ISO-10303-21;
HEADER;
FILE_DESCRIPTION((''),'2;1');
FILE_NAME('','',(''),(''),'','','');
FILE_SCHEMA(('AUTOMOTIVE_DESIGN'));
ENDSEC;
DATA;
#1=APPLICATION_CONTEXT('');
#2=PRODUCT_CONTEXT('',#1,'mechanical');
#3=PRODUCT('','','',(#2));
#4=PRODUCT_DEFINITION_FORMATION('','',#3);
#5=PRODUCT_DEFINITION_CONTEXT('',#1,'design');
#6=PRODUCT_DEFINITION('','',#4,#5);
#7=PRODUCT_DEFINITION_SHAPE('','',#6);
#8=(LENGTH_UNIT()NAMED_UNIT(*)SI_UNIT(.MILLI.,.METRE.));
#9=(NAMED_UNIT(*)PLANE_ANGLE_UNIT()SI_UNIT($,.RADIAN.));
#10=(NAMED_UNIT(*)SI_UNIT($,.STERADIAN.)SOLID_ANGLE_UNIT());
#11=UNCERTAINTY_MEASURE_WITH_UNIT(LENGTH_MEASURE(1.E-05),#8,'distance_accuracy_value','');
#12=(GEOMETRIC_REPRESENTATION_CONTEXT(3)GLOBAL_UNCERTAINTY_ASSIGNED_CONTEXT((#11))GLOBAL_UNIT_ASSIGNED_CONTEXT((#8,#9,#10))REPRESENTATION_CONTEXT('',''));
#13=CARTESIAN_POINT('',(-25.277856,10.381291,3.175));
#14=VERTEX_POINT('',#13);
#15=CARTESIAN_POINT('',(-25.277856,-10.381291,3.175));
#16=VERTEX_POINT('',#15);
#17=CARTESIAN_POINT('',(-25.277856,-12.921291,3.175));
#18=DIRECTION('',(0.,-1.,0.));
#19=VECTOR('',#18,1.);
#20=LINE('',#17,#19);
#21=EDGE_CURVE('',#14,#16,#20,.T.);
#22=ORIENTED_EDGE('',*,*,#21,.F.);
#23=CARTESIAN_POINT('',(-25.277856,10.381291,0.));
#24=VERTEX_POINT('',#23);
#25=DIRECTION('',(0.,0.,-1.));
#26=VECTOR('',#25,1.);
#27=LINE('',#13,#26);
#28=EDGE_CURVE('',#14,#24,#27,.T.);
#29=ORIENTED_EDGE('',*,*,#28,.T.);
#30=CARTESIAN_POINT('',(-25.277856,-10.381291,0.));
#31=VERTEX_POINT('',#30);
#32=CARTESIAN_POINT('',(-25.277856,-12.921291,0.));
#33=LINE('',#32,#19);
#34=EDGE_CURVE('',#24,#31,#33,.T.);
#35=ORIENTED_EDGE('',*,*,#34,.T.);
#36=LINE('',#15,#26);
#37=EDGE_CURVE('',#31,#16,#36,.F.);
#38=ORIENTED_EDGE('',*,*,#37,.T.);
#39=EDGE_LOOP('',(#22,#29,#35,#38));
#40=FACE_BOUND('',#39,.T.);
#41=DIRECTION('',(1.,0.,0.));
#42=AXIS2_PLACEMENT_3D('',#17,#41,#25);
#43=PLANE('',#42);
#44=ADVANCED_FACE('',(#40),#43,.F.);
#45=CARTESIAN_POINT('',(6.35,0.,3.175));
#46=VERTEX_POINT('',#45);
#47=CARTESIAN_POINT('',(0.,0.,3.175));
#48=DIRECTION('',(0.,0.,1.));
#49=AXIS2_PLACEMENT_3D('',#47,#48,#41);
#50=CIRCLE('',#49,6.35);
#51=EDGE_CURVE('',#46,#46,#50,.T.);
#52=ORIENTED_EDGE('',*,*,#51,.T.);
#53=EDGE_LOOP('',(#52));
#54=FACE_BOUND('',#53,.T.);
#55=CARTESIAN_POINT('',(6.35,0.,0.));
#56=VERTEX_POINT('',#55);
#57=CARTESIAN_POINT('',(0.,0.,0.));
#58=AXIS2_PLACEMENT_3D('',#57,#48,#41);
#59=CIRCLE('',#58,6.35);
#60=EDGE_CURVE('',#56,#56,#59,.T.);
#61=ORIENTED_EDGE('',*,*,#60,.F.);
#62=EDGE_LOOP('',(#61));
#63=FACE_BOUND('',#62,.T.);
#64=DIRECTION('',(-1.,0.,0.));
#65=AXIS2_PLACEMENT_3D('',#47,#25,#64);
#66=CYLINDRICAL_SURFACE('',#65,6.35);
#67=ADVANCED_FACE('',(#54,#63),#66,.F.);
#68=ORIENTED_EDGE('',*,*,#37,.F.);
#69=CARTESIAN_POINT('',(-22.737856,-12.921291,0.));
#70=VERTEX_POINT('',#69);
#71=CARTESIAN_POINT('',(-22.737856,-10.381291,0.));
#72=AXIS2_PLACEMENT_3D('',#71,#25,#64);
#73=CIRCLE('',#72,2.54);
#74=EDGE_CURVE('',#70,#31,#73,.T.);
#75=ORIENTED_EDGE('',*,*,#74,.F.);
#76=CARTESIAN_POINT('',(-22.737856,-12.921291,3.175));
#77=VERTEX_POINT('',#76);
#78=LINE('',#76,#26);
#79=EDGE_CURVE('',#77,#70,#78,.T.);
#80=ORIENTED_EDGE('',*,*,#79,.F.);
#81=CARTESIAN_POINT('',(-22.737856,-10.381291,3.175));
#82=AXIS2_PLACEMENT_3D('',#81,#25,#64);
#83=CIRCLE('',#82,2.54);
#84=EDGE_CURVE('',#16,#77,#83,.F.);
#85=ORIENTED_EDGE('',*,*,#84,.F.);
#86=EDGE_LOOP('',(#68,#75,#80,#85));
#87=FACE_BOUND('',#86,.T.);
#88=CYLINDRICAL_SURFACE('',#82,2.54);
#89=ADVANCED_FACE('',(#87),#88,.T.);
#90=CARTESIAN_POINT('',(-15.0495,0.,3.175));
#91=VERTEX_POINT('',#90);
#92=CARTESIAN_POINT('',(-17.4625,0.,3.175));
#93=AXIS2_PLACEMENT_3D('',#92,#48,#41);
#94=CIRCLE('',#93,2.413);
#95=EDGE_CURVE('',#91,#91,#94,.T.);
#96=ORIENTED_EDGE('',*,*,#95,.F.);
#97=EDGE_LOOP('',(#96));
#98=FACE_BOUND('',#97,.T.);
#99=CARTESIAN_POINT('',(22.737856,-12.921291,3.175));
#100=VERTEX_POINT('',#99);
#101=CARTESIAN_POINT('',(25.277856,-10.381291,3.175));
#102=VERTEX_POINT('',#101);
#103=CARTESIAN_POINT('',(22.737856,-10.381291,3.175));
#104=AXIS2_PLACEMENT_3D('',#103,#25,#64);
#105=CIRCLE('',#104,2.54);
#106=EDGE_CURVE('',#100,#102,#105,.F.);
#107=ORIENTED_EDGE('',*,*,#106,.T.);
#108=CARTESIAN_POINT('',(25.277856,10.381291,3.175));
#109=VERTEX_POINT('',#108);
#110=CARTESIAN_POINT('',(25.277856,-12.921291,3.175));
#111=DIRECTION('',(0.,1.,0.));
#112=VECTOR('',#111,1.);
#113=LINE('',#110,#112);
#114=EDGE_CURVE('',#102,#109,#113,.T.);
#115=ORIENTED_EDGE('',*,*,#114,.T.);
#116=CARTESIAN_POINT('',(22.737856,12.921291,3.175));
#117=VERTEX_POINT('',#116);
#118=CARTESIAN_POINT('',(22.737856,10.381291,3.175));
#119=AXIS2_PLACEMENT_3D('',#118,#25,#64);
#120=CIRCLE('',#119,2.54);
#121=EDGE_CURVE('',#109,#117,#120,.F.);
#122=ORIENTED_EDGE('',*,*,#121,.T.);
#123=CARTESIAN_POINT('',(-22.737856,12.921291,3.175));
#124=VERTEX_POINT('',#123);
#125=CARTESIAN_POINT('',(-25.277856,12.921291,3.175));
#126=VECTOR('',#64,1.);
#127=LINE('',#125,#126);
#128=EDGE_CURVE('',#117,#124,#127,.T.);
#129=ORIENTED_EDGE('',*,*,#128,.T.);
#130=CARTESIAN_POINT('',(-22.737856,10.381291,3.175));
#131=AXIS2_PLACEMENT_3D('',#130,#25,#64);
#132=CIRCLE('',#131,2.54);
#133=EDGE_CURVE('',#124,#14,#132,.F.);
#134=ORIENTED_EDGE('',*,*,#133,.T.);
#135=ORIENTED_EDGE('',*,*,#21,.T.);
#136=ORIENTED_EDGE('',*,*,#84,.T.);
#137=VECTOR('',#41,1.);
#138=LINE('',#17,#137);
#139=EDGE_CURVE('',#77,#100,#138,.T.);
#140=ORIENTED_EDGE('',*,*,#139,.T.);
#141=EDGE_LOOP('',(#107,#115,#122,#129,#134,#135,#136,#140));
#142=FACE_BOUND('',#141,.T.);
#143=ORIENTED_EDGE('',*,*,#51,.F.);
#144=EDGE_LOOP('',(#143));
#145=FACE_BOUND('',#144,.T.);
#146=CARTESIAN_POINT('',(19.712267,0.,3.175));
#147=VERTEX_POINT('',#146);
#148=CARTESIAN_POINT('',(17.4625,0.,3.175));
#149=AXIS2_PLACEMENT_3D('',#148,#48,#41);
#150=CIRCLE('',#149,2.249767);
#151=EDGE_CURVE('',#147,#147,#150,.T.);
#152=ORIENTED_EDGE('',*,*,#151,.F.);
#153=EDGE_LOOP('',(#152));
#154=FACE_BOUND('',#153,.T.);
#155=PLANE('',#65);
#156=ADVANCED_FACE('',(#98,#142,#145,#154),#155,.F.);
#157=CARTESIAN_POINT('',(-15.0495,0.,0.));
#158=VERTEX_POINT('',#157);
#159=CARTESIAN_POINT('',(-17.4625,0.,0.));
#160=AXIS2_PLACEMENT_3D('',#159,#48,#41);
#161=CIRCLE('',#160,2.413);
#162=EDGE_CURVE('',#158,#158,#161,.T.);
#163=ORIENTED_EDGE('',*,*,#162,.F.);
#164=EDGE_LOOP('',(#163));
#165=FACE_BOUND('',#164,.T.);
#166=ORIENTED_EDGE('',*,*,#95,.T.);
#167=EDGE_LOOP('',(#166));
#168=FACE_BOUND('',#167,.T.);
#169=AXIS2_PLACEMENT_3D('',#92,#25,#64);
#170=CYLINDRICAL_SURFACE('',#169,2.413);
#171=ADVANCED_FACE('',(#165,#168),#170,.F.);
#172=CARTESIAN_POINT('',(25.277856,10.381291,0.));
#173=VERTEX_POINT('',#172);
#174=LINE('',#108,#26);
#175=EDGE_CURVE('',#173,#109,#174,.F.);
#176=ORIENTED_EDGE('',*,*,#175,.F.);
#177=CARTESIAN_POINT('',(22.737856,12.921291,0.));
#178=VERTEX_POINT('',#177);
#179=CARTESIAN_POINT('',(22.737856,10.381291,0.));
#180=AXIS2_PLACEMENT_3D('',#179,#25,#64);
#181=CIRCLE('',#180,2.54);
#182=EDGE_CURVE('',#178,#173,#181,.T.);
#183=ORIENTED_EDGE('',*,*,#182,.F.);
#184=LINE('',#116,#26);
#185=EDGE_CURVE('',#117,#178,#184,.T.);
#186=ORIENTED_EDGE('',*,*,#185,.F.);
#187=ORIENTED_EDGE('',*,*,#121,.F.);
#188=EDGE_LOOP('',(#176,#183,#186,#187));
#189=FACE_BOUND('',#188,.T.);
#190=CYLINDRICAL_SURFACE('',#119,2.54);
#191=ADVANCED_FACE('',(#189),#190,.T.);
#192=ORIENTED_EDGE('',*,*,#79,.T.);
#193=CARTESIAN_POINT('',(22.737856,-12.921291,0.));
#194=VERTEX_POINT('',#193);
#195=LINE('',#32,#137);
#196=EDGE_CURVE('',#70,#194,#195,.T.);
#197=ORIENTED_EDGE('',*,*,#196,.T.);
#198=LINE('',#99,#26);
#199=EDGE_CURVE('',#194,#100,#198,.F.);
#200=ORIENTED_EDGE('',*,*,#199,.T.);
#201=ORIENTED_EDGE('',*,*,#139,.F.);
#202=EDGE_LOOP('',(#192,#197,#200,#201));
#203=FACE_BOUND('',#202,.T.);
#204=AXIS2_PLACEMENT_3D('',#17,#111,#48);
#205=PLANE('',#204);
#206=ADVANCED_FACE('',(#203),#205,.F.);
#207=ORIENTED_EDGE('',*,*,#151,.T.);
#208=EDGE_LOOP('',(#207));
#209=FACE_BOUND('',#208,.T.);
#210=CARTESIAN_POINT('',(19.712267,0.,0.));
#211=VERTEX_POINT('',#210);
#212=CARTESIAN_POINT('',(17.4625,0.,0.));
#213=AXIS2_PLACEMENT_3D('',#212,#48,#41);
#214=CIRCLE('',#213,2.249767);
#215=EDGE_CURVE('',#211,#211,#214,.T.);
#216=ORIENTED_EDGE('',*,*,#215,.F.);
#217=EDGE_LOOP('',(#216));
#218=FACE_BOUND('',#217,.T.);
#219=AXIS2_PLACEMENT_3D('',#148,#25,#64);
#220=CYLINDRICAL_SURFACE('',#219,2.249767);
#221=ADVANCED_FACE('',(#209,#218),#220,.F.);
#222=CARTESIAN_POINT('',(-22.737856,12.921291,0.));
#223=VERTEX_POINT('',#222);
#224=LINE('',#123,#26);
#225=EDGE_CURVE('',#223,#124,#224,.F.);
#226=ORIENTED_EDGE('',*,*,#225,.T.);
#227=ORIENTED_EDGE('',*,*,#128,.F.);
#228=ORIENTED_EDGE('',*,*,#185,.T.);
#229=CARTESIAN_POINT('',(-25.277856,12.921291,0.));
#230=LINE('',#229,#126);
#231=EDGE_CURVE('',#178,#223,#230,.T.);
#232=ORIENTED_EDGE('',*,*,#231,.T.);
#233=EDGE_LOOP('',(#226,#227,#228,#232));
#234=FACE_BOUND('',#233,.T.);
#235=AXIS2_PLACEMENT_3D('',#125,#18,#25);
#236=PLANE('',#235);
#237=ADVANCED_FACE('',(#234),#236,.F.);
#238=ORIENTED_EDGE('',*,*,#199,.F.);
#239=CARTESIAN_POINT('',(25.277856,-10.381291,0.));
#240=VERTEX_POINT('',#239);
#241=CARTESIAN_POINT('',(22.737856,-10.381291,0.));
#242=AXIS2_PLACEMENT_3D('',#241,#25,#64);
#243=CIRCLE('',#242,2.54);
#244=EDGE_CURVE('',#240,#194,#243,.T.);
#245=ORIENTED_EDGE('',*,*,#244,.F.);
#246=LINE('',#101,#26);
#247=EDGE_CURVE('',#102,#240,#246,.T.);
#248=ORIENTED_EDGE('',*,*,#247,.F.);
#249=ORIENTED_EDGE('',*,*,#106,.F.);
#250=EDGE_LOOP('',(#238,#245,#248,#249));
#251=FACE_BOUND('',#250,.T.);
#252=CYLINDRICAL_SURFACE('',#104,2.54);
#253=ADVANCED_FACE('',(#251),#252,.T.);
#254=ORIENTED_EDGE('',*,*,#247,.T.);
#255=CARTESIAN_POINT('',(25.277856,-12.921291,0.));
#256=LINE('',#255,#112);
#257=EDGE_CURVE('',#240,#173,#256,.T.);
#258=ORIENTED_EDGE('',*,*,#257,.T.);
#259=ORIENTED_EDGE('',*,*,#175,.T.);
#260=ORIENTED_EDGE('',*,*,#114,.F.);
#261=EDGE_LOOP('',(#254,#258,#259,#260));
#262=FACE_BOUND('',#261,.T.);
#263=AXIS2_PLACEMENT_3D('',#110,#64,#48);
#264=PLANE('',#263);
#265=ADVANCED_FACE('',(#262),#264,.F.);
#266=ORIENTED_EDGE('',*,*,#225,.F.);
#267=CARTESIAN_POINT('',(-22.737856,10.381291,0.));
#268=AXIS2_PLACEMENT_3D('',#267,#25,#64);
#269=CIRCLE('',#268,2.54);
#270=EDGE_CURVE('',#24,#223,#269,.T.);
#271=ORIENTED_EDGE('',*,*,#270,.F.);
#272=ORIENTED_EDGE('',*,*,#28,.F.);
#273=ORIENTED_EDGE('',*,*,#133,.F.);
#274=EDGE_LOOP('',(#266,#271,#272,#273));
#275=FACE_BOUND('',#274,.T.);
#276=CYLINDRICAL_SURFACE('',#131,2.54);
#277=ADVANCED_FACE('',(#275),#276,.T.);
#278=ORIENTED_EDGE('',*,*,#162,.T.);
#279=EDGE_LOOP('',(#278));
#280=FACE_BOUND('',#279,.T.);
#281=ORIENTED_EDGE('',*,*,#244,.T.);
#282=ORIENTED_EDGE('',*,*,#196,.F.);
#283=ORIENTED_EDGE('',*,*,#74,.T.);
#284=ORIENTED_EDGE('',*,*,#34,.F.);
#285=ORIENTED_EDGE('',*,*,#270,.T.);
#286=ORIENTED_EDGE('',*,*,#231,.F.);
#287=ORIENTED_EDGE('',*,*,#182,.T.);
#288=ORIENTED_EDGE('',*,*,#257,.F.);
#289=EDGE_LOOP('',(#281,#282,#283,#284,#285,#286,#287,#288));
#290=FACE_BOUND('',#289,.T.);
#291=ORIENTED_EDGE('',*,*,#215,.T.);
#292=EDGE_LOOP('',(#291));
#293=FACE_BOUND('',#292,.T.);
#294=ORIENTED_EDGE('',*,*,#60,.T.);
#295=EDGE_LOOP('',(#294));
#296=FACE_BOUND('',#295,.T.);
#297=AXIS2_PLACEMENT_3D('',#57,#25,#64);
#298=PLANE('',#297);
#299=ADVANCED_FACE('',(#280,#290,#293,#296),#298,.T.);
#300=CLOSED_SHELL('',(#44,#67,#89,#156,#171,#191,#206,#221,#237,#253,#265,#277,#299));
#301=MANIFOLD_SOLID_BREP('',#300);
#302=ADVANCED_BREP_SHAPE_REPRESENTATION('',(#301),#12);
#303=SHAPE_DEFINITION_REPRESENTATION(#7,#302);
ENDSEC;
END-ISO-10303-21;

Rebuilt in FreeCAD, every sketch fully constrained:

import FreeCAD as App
import Part
import Sketcher
from FreeCAD import Vector
Q = App.Units.Quantity


def edges_at(feature, points):
    """Names of the edges that pass closest to the given points."""
    edges = feature.Shape.Edges
    near = lambda p: min(range(len(edges)), key=lambda i: edges[i].distToShape(Part.Vertex(*p))[0])
    return sorted({f"Edge{near(p) + 1}" for p in points})

doc = App.newDocument("Part")
body = doc.addObject("PartDesign::Body", "Body")

sketch1 = body.newObject("Sketcher::SketchObject", "Sketch")
sketch1.AttachmentSupport = (doc.getObject("XY_Plane"), [""])
sketch1.MapMode = "FlatFace"
sketch1.addGeometry([
    Part.LineSegment(Vector(-25.3, 12.9, 0), Vector(-25.3, -12.9, 0)),
    Part.LineSegment(Vector(-25.3, -12.9, 0), Vector(25.3, -12.9, 0)),
    Part.LineSegment(Vector(25.3, -12.9, 0), Vector(25.3, 12.9, 0)),
    Part.LineSegment(Vector(25.3, 12.9, 0), Vector(-25.3, 12.9, 0)),
    Part.Circle(Vector(-17.5, 0, 0), Vector(0, 0, 1), 2.4),
    Part.Circle(Vector(0, 0, 0), Vector(0, 0, 1), 6.3),
    Part.Circle(Vector(17.5, 0, 0), Vector(0, 0, 1), 2.2),
], False)
sketch1.addConstraint([
    Sketcher.Constraint("Coincident", 0, 2, 1, 1),
    Sketcher.Constraint("Coincident", 1, 2, 2, 1),
    Sketcher.Constraint("Coincident", 2, 2, 3, 1),
    Sketcher.Constraint("Coincident", 3, 2, 0, 1),
    Sketcher.Constraint("Vertical", 0),
    Sketcher.Constraint("Horizontal", 1),
    Sketcher.Constraint("Vertical", 2),
    Sketcher.Constraint("Horizontal", 3),
    Sketcher.Constraint("Coincident", 5, 3, -1, 1),
    Sketcher.Constraint("Symmetric", 4, 3, 6, 3, -1, 1),
    Sketcher.Constraint("Symmetric", 0, 2, 2, 2, -1, 1),
    Sketcher.Constraint("PointOnObject", 4, 3, -1),
    Sketcher.Constraint("Diameter", 5, Q("0.5 in")),
    Sketcher.Constraint("Diameter", 4, Q("0.19 in")),
    Sketcher.Constraint("DistanceX", 4, 3, -1, 1, Q("0.6875 in")),
    Sketcher.Constraint("Diameter", 6, Q("4.499533 mm")),
    Sketcher.Constraint("DistanceX", 1, 1, 1, 2, Q("50.555712 mm")),
    Sketcher.Constraint("DistanceY", 0, 2, 0, 1, Q("25.842582 mm")),
])
pad1 = body.newObject("PartDesign::Pad", "Pad")
pad1.Profile = sketch1
pad1.Length = Q("0.125 in")
doc.recompute()

fillet = body.newObject("PartDesign::Fillet", "Fillet")
fillet.Base = (pad1, edges_at(pad1, [
    (25.278, -12.921, 1.587),
    (-25.278, -12.921, 1.587),
    (-25.278, 12.921, 1.587),
    (25.278, 12.921, 1.587),
]))
fillet.Radius = Q("0.1 in")

doc.recompute()
